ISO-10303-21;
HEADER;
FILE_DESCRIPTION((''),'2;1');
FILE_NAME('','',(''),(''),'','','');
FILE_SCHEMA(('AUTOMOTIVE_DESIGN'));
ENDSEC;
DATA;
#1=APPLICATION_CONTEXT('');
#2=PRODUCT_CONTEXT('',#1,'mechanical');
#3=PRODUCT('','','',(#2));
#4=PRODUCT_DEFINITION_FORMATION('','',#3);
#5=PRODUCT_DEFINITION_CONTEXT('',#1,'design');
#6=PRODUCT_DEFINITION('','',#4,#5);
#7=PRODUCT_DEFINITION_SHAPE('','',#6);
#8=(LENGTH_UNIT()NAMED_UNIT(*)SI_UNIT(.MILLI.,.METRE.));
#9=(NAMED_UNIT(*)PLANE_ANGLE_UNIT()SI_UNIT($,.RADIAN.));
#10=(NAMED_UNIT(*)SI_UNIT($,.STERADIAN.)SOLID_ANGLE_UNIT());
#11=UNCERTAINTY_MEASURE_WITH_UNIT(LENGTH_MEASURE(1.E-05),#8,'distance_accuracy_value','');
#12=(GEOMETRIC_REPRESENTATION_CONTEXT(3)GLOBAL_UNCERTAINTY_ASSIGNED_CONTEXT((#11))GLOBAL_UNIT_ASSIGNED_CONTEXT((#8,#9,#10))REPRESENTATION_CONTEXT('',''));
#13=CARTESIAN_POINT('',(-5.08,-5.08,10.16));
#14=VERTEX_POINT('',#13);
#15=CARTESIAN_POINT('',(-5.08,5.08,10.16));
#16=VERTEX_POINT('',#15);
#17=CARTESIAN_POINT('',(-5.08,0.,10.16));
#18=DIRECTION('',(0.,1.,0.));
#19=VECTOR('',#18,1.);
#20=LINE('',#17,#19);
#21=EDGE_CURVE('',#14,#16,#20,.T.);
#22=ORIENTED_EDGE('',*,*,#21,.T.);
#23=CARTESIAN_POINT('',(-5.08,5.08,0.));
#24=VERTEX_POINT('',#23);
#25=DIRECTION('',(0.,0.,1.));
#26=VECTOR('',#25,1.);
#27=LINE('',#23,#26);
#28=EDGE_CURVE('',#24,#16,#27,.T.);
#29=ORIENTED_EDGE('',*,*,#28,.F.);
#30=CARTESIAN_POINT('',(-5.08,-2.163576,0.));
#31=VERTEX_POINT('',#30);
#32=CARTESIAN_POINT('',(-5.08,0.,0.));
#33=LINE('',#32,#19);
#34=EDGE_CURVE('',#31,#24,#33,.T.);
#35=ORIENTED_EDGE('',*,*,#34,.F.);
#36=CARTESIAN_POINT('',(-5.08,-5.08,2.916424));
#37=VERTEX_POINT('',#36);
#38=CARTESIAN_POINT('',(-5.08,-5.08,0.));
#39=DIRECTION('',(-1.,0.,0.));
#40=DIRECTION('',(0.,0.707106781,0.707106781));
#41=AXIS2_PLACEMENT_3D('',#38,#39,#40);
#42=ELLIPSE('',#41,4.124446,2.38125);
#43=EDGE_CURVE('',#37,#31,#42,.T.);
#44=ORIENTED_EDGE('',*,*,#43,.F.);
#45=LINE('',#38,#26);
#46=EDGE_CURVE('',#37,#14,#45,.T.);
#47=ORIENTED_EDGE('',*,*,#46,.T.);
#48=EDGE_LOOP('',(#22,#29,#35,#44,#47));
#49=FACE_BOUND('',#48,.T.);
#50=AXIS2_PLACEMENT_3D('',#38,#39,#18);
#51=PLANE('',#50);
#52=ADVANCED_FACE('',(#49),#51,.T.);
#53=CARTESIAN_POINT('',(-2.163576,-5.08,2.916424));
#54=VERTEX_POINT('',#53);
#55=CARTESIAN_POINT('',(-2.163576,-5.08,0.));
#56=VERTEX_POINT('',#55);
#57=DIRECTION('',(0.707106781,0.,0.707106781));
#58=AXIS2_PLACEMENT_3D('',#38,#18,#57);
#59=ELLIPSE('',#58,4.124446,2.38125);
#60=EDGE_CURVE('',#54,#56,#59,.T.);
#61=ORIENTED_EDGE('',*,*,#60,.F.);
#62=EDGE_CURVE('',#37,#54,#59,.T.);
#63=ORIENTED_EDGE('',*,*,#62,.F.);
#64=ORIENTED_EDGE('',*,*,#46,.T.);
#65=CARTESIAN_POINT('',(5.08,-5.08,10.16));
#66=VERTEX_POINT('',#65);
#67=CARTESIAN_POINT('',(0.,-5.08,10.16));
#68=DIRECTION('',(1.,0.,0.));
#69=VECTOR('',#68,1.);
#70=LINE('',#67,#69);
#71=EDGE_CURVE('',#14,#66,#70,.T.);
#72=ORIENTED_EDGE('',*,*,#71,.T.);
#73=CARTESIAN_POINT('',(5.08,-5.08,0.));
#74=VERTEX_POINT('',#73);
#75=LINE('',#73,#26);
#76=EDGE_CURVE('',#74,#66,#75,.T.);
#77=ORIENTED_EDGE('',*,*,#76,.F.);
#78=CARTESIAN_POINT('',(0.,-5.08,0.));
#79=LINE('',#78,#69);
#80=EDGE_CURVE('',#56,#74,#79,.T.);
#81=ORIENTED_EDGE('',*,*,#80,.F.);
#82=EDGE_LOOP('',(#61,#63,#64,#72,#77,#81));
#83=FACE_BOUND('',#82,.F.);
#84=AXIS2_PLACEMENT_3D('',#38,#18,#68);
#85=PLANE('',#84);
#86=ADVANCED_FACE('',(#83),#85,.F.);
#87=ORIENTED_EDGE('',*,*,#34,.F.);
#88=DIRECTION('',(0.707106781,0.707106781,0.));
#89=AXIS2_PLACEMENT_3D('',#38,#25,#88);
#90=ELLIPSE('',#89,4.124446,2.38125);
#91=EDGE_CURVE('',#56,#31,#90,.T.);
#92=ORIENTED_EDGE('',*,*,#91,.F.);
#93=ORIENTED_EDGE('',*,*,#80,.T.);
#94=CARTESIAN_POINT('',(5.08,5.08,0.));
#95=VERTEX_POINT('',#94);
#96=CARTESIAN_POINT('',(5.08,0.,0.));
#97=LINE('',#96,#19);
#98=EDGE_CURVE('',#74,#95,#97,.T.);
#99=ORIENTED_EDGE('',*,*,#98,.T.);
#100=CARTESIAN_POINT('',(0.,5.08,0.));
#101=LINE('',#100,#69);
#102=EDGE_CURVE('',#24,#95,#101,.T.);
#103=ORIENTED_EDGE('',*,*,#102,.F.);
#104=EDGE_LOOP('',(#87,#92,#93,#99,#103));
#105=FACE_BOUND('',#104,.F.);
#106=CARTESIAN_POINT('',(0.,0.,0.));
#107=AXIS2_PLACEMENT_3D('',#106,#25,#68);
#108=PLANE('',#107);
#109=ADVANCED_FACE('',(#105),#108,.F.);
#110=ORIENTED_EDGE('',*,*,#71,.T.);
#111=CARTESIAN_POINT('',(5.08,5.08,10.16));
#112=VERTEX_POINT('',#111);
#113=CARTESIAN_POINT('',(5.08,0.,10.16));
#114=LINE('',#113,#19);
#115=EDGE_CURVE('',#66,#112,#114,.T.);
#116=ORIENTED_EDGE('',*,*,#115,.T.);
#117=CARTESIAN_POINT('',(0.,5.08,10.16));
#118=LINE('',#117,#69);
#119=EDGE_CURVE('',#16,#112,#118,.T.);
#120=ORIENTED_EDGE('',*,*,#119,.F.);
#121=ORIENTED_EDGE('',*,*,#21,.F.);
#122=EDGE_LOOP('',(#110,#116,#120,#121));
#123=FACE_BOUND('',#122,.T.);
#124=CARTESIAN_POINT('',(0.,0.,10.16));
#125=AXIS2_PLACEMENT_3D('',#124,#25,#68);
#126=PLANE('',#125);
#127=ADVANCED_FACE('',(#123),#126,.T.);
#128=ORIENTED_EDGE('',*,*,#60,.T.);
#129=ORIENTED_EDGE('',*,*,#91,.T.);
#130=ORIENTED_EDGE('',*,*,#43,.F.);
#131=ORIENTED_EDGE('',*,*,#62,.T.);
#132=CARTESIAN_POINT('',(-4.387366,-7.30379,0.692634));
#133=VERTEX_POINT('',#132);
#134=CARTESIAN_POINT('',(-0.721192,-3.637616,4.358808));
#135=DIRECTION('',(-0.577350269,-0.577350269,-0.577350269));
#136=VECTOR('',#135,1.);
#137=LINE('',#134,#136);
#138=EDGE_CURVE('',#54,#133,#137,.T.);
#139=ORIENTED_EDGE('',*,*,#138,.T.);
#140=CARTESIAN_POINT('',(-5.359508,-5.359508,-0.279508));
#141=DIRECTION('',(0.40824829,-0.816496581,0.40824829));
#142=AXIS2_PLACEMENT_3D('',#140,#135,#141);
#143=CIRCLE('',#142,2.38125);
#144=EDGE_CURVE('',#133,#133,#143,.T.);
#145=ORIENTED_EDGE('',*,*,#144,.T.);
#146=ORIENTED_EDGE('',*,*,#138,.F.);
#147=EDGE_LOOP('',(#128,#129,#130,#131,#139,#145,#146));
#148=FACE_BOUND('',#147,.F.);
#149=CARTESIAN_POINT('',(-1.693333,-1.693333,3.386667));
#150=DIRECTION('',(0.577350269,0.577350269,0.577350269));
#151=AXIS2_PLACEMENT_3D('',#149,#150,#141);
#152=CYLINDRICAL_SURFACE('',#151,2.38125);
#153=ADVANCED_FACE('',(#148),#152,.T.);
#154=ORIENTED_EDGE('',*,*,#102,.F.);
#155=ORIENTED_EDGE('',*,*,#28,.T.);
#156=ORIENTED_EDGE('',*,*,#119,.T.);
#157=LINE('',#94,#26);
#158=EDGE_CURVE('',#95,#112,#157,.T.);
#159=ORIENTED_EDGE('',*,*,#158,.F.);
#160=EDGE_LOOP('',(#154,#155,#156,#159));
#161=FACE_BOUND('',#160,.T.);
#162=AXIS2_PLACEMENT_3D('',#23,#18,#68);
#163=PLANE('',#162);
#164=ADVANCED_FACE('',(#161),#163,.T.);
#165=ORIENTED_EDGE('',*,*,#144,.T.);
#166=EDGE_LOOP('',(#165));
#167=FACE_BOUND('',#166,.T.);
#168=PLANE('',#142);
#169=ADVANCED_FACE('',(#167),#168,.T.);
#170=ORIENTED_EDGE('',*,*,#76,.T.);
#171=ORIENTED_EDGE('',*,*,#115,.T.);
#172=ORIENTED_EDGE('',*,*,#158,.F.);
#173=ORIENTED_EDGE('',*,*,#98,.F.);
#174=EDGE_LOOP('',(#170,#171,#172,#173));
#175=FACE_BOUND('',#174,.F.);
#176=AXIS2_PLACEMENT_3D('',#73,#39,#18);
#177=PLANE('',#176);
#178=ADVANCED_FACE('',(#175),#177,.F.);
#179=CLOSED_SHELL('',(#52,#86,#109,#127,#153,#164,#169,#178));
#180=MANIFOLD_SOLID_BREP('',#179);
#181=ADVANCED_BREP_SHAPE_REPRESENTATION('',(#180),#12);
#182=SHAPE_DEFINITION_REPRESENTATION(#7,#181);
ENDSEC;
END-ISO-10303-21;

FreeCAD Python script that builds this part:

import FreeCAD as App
import Part
import Sketcher
Q = App.Units.Quantity


def add_polygon(sketch, points):
    """Adds a closed chain of lines whose ends are joined by coincident constraints."""
    first, n = sketch.GeometryCount, len(points)
    for a, b in zip(points, points[1:] + points[:1]):
        sketch.addGeometry(Part.LineSegment(App.Vector(*a, 0), App.Vector(*b, 0)), False)
    for i in range(n):
        sketch.addConstraint(Sketcher.Constraint("Coincident", first + i, 2, first + (i + 1) % n, 1))

doc = App.newDocument("Part")
body = doc.addObject("PartDesign::Body", "Body")

# Sketch on XY plane
sketch1 = doc.addObject("Sketcher::SketchObject", "Sketch")
body.addObject(sketch1)
sketch1.AttachmentSupport = (doc.XY_Plane, [""])
sketch1.MapMode = "FlatFace"
add_polygon(sketch1, [(-5, 5), (-5, -5), (5, -5), (5, 5)])  # lines 0-3
sketch1.addConstraint([
    Sketcher.Constraint("Vertical", 0),
    Sketcher.Constraint("Horizontal", 1),
    Sketcher.Constraint("Vertical", 2),
    Sketcher.Constraint("Horizontal", 3),
    Sketcher.Constraint("Symmetric", 0, 2, 2, 2, -1, 1),
    Sketcher.Constraint("Equal", 3, 0),
    Sketcher.Constraint("DistanceX", 1, 1, 1, 2, Q("0.4 in")),
])
pad1 = doc.addObject("PartDesign::Pad", "Pad")
body.addObject(pad1)
pad1.Profile = sketch1
pad1.Length = Q("0.4 in")

# Sketch on an angled plane
sketch2 = doc.addObject("Sketcher::SketchObject", "Sketch001")
body.addObject(sketch2)
sketch2.Placement = App.Placement(App.Vector(0, 0, 0), App.Rotation(App.Vector(0.40824829, -0.816496581, 0.40824829), App.Vector(-0.707106781, 0, 0.707106781), App.Vector(-0.577350269, -0.577350269, -0.577350269), "ZXY"))
sketch2.addGeometry(Part.Circle(App.Vector(2.1, 3.6, 0), App.Vector(0, 0, 1), 2.4), False)
sketch2.addConstraint([
    Sketcher.Constraint("Diameter", 0, Q("0.1875 in")),
    Sketcher.Constraint("DistanceX", -1, 1, 0, 3, Q("2.073901 mm")),
    Sketcher.Constraint("DistanceY", -1, 1, 0, 3, Q("3.592102 mm")),
])
pad2 = doc.addObject("PartDesign::Pad", "Pad001")
body.addObject(pad2)
pad2.Profile = sketch2
pad2.Length = Q("0.25 in")

doc.recompute()
